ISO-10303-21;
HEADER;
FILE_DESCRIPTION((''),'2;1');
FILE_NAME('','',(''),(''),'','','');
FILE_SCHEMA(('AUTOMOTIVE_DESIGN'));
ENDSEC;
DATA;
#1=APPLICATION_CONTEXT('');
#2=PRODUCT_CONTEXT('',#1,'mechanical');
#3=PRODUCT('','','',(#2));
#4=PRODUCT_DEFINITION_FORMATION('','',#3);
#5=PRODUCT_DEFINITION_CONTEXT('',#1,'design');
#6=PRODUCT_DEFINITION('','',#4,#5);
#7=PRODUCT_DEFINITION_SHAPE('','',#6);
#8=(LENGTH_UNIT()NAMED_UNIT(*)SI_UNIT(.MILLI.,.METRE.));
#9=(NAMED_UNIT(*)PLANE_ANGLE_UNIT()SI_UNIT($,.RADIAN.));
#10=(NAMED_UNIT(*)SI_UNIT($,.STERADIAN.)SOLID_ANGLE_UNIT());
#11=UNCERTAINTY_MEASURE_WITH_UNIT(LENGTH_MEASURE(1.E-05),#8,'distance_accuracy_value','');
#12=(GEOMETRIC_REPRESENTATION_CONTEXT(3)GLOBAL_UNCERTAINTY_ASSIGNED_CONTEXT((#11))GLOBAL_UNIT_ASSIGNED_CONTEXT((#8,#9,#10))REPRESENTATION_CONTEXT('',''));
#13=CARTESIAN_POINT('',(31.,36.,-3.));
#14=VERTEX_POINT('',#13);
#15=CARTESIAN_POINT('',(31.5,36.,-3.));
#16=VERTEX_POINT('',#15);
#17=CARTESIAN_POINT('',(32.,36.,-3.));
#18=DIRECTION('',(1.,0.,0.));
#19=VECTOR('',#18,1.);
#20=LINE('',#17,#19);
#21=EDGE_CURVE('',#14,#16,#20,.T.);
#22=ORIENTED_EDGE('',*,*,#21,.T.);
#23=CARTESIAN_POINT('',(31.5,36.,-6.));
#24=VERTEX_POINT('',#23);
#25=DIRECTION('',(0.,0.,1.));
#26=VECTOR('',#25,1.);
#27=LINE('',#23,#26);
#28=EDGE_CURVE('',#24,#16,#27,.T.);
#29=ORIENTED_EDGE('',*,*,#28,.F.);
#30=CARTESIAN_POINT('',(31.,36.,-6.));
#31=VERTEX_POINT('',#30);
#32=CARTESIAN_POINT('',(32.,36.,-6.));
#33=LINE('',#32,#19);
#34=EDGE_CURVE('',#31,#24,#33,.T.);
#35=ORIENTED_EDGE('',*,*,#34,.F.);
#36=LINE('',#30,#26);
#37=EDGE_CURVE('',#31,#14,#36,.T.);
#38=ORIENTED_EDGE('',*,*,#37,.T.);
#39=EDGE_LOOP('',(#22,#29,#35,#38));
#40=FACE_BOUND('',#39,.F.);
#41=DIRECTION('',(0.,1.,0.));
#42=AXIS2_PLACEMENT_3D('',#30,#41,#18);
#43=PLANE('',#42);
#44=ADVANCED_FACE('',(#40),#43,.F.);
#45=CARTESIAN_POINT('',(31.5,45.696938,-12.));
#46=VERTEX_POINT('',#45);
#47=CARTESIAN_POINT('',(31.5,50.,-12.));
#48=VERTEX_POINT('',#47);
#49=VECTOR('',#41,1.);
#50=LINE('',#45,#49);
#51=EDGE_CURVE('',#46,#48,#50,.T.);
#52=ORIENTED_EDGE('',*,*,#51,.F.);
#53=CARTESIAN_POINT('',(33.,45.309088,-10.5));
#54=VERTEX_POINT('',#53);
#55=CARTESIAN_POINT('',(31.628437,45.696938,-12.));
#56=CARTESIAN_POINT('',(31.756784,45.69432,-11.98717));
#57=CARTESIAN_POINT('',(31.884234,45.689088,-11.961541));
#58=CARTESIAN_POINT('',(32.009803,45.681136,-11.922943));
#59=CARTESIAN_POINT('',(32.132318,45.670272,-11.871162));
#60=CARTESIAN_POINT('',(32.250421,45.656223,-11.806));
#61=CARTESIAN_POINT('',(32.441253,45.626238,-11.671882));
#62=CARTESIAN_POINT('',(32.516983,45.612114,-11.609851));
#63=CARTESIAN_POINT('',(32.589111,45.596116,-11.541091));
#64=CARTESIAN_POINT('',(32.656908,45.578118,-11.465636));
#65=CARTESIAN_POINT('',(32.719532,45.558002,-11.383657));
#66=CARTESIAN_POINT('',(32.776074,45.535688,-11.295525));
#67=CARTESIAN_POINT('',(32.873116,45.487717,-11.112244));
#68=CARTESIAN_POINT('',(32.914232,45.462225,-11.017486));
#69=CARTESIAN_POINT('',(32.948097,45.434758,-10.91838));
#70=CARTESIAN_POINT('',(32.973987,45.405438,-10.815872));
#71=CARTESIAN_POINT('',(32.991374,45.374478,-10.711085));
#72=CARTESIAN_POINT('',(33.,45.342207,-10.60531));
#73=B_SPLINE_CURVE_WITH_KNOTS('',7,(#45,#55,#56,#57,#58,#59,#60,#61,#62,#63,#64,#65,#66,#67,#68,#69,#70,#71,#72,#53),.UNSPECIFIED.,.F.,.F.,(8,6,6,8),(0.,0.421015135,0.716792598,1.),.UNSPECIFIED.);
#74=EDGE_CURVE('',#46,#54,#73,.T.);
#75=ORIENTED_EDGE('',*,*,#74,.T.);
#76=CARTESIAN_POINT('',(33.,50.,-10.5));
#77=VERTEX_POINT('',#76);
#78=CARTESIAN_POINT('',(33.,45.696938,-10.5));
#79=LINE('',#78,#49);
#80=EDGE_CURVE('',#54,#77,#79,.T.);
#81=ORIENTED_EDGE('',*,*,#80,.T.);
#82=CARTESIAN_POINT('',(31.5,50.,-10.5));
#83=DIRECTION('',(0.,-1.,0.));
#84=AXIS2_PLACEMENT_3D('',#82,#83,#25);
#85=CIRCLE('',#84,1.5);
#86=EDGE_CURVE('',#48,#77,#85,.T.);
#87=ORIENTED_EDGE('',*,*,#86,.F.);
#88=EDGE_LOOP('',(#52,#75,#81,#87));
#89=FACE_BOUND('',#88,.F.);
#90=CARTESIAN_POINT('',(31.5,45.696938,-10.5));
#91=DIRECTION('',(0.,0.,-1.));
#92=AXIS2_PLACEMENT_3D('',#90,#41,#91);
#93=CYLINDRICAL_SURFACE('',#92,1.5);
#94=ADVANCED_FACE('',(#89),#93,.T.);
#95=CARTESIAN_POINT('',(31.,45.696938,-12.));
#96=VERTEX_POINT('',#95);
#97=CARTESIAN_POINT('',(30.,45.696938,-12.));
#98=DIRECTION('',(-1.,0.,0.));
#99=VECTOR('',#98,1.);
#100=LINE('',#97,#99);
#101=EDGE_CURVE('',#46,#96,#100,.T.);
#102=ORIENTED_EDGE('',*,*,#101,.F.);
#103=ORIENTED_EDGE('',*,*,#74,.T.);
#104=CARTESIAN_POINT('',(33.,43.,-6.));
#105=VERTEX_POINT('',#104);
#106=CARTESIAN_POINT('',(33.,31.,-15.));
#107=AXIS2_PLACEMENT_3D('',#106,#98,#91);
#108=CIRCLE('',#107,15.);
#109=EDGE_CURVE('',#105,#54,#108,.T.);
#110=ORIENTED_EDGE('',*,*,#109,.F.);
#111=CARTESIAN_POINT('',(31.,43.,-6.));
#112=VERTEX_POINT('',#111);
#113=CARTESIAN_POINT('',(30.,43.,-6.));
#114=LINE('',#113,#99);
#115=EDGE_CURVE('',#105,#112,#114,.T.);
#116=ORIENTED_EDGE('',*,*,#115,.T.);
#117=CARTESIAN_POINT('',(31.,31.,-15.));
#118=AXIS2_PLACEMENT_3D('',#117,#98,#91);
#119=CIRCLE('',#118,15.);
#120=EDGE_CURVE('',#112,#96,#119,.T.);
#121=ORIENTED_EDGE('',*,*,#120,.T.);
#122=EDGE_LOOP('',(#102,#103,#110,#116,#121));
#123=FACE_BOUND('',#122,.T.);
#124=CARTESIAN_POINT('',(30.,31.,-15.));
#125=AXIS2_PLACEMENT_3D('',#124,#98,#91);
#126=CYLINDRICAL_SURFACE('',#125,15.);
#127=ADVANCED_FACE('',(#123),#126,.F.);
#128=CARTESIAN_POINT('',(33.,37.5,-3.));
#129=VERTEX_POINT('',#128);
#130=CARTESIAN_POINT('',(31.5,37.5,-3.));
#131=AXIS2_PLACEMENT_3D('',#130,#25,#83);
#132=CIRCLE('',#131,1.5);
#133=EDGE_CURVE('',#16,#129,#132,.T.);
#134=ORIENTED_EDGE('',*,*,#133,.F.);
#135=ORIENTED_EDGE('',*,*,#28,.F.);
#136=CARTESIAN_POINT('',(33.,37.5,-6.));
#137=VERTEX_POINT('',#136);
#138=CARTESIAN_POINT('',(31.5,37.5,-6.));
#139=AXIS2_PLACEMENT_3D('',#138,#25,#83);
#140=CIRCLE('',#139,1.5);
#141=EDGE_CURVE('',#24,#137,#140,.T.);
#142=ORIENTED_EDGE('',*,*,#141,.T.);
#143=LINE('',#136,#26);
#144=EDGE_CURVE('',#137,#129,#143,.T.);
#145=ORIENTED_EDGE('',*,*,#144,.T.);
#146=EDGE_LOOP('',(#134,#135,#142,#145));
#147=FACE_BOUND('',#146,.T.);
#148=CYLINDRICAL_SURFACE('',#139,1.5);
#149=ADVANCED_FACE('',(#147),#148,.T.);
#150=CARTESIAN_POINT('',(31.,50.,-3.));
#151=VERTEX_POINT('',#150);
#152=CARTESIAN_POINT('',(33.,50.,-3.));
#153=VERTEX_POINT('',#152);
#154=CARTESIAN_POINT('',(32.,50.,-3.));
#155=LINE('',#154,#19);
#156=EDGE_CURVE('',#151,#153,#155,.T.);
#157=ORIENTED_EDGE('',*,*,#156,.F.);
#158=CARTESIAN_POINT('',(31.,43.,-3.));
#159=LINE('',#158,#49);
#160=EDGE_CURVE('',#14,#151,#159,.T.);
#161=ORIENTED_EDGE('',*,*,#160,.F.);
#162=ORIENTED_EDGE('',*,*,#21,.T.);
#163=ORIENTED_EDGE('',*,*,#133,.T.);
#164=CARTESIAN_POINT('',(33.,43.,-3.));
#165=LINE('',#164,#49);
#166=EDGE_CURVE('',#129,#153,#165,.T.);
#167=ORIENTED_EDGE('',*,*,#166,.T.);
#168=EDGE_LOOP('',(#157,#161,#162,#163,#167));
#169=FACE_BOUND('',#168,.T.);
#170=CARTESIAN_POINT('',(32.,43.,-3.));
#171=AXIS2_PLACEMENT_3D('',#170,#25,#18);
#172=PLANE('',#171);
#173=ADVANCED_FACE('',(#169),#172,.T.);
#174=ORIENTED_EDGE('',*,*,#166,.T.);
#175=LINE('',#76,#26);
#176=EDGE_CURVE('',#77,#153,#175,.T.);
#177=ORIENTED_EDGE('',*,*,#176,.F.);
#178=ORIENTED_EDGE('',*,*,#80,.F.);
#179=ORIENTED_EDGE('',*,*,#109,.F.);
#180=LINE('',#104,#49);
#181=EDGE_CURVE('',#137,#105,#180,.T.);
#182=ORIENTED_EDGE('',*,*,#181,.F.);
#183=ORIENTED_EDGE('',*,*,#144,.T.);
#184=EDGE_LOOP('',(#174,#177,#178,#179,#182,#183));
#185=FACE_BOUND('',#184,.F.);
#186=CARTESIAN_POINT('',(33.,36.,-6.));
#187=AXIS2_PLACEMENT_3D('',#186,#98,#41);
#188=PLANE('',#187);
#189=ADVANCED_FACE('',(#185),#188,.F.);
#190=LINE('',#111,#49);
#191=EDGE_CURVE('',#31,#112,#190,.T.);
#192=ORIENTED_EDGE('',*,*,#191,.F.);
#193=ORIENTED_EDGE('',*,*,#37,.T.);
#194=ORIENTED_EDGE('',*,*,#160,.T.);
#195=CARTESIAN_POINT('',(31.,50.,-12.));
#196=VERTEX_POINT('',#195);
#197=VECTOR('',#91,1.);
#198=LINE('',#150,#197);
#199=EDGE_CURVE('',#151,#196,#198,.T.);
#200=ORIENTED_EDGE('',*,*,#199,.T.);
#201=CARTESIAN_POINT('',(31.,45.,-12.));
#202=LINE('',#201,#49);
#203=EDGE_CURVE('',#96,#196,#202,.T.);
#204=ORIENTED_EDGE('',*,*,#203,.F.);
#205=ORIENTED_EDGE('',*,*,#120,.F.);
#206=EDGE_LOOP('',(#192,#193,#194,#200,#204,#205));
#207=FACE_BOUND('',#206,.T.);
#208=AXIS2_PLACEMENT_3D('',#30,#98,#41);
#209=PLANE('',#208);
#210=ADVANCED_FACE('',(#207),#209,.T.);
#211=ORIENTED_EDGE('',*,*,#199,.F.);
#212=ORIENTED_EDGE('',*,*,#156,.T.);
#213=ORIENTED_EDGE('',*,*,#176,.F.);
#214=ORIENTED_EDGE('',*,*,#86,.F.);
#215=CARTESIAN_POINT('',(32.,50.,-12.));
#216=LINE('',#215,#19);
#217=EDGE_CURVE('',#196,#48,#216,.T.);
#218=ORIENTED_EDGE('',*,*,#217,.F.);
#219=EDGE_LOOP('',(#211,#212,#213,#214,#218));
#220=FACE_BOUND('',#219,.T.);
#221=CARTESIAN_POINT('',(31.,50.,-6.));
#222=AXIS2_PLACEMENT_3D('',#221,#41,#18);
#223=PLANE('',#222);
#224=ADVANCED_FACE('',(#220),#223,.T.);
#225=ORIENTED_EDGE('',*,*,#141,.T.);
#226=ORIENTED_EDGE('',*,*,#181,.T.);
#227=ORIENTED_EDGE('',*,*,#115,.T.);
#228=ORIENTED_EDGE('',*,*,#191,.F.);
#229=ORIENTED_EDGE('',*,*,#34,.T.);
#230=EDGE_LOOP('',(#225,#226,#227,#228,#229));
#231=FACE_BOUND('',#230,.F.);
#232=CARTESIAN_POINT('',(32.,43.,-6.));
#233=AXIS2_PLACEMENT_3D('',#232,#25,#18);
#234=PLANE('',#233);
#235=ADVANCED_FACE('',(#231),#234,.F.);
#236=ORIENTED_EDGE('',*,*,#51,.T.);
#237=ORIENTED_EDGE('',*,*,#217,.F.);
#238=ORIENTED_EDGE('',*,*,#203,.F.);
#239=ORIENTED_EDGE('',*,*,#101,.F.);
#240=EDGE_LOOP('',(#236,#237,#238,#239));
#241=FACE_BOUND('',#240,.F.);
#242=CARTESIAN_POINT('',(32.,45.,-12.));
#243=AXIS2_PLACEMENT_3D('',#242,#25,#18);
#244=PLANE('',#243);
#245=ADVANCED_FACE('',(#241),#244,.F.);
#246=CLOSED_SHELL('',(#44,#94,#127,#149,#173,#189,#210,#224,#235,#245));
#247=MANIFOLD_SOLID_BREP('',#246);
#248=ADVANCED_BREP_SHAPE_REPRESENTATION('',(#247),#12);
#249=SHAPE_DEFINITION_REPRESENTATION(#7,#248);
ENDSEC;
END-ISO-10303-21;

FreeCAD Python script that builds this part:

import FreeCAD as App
import Part
import Sketcher


def edges_at(feature, points):
    """Names of the edges that pass closest to the given points."""
    edges = feature.Shape.Edges
    near = lambda p: min(range(len(edges)), key=lambda i: edges[i].distToShape(Part.Vertex(*p))[0])
    return sorted({f"Edge{near(p) + 1}" for p in points})

doc = App.newDocument("Part")
body = doc.addObject("PartDesign::Body", "Body")

sketch1 = body.newObject("Sketcher::SketchObject", "Sketch")
sketch1.AttachmentSupport = (doc.getObject("XY_Plane"), [""])
sketch1.MapMode = "FlatFace"
sketch1.AttachmentOffset = App.Placement(App.Vector(0, 0, -6), App.Rotation())
sketch1.addGeometry([
    Part.LineSegment(App.Vector(31, 50, 0), App.Vector(31, 36, 0)),
    Part.LineSegment(App.Vector(31, 36, 0), App.Vector(33, 36, 0)),
    Part.LineSegment(App.Vector(33, 36, 0), App.Vector(33, 50, 0)),
    Part.LineSegment(App.Vector(33, 50, 0), App.Vector(31, 50, 0)),
], False)
sketch1.addConstraint([
    Sketcher.Constraint("Coincident", 0, 2, 1, 1),
    Sketcher.Constraint("Coincident", 1, 2, 2, 1),
    Sketcher.Constraint("Coincident", 2, 2, 3, 1),
    Sketcher.Constraint("Coincident", 3, 2, 0, 1),
    Sketcher.Constraint("Vertical", 0),
    Sketcher.Constraint("Horizontal", 1),
    Sketcher.Constraint("Vertical", 2),
    Sketcher.Constraint("Horizontal", 3),
    Sketcher.Constraint("DistanceX", 1, 1, 1, 2, 2.0),
    Sketcher.Constraint("DistanceY", 0, 2, 0, 1, 14.0),
    Sketcher.Constraint("DistanceX", -1, 1, 0, 2, 31.0),
    Sketcher.Constraint("DistanceY", -1, 1, 0, 2, 36.0),
])
pad1 = body.newObject("PartDesign::Pad", "Pad")
pad1.Profile = sketch1
pad1.Length = 3
doc.recompute()

fillet = body.newObject("PartDesign::Fillet", "Fillet")
fillet.Base = (pad1, edges_at(pad1, [(33, 36, -4.5)]))
fillet.Radius = 1.5
body2 = doc.addObject("PartDesign::Body", "Body001")

sketch2 = body2.newObject("Sketcher::SketchObject", "Sketch001")
sketch2.AttachmentSupport = (doc.getObject("YZ_Plane001"), [""])
sketch2.MapMode = "FlatFace"
sketch2.AttachmentOffset = App.Placement(App.Vector(0, 0, 30), App.Rotation())
sketch2.addGeometry(Part.Circle(App.Vector(31, -15, 0), App.Vector(0, 0, 1), 15), False)
sketch2.addConstraint([
    Sketcher.Constraint("Diameter", 0, 30.0),
    Sketcher.Constraint("DistanceX", -1, 1, 0, 3, 31.0),
    Sketcher.Constraint("DistanceY", 0, 3, -1, 1, 15.0),
])
pad2 = body2.newObject("PartDesign::Pad", "Pad001")
pad2.Profile = sketch2
pad2.Length = 4
body3 = doc.addObject("PartDesign::Body", "Body002")

sketch3 = body3.newObject("Sketcher::SketchObject", "Sketch002")
sketch3.AttachmentSupport = (doc.getObject("XY_Plane002"), [""])
sketch3.MapMode = "FlatFace"
sketch3.AttachmentOffset = App.Placement(App.Vector(0, 0, -12), App.Rotation())
sketch3.addGeometry([
    Part.LineSegment(App.Vector(31, 50, 0), App.Vector(31, 40, 0)),
    Part.LineSegment(App.Vector(31, 40, 0), App.Vector(33, 40, 0)),
    Part.LineSegment(App.Vector(33, 40, 0), App.Vector(33, 50, 0)),
    Part.LineSegment(App.Vector(33, 50, 0), App.Vector(31, 50, 0)),
], False)
sketch3.addConstraint([
    Sketcher.Constraint("Coincident", 0, 2, 1, 1),
    Sketcher.Constraint("Coincident", 1, 2, 2, 1),
    Sketcher.Constraint("Coincident", 2, 2, 3, 1),
    Sketcher.Constraint("Coincident", 3, 2, 0, 1),
    Sketcher.Constraint("Vertical", 0),
    Sketcher.Constraint("Horizontal", 1),
    Sketcher.Constraint("Vertical", 2),
    Sketcher.Constraint("Horizontal", 3),
    Sketcher.Constraint("DistanceX", 1, 1, 1, 2, 2.0),
    Sketcher.Constraint("DistanceY", 0, 2, 0, 1, 10.0),
    Sketcher.Constraint("DistanceX", -1, 1, 0, 2, 31.0),
    Sketcher.Constraint("DistanceY", -1, 1, 0, 2, 40.0),
])
pad3 = body3.newObject("PartDesign::Pad", "Pad002")
pad3.Profile = sketch3
pad3.Length = 6
doc.recompute()

boolean = body3.newObject("PartDesign::Boolean", "Boolean")
boolean.Type = "Cut"
boolean.addObjects([body2])
doc.recompute()

fillet2 = body3.newObject("PartDesign::Fillet", "Fillet001")
fillet2.Base = (boolean, edges_at(boolean, [(33, 47.848, -12)]))
fillet2.Radius = 1.5
doc.recompute()

boolean2 = body3.newObject("PartDesign::Boolean", "Boolean001")
boolean2.Type = "Fuse"
boolean2.addObjects([body])

doc.recompute()
